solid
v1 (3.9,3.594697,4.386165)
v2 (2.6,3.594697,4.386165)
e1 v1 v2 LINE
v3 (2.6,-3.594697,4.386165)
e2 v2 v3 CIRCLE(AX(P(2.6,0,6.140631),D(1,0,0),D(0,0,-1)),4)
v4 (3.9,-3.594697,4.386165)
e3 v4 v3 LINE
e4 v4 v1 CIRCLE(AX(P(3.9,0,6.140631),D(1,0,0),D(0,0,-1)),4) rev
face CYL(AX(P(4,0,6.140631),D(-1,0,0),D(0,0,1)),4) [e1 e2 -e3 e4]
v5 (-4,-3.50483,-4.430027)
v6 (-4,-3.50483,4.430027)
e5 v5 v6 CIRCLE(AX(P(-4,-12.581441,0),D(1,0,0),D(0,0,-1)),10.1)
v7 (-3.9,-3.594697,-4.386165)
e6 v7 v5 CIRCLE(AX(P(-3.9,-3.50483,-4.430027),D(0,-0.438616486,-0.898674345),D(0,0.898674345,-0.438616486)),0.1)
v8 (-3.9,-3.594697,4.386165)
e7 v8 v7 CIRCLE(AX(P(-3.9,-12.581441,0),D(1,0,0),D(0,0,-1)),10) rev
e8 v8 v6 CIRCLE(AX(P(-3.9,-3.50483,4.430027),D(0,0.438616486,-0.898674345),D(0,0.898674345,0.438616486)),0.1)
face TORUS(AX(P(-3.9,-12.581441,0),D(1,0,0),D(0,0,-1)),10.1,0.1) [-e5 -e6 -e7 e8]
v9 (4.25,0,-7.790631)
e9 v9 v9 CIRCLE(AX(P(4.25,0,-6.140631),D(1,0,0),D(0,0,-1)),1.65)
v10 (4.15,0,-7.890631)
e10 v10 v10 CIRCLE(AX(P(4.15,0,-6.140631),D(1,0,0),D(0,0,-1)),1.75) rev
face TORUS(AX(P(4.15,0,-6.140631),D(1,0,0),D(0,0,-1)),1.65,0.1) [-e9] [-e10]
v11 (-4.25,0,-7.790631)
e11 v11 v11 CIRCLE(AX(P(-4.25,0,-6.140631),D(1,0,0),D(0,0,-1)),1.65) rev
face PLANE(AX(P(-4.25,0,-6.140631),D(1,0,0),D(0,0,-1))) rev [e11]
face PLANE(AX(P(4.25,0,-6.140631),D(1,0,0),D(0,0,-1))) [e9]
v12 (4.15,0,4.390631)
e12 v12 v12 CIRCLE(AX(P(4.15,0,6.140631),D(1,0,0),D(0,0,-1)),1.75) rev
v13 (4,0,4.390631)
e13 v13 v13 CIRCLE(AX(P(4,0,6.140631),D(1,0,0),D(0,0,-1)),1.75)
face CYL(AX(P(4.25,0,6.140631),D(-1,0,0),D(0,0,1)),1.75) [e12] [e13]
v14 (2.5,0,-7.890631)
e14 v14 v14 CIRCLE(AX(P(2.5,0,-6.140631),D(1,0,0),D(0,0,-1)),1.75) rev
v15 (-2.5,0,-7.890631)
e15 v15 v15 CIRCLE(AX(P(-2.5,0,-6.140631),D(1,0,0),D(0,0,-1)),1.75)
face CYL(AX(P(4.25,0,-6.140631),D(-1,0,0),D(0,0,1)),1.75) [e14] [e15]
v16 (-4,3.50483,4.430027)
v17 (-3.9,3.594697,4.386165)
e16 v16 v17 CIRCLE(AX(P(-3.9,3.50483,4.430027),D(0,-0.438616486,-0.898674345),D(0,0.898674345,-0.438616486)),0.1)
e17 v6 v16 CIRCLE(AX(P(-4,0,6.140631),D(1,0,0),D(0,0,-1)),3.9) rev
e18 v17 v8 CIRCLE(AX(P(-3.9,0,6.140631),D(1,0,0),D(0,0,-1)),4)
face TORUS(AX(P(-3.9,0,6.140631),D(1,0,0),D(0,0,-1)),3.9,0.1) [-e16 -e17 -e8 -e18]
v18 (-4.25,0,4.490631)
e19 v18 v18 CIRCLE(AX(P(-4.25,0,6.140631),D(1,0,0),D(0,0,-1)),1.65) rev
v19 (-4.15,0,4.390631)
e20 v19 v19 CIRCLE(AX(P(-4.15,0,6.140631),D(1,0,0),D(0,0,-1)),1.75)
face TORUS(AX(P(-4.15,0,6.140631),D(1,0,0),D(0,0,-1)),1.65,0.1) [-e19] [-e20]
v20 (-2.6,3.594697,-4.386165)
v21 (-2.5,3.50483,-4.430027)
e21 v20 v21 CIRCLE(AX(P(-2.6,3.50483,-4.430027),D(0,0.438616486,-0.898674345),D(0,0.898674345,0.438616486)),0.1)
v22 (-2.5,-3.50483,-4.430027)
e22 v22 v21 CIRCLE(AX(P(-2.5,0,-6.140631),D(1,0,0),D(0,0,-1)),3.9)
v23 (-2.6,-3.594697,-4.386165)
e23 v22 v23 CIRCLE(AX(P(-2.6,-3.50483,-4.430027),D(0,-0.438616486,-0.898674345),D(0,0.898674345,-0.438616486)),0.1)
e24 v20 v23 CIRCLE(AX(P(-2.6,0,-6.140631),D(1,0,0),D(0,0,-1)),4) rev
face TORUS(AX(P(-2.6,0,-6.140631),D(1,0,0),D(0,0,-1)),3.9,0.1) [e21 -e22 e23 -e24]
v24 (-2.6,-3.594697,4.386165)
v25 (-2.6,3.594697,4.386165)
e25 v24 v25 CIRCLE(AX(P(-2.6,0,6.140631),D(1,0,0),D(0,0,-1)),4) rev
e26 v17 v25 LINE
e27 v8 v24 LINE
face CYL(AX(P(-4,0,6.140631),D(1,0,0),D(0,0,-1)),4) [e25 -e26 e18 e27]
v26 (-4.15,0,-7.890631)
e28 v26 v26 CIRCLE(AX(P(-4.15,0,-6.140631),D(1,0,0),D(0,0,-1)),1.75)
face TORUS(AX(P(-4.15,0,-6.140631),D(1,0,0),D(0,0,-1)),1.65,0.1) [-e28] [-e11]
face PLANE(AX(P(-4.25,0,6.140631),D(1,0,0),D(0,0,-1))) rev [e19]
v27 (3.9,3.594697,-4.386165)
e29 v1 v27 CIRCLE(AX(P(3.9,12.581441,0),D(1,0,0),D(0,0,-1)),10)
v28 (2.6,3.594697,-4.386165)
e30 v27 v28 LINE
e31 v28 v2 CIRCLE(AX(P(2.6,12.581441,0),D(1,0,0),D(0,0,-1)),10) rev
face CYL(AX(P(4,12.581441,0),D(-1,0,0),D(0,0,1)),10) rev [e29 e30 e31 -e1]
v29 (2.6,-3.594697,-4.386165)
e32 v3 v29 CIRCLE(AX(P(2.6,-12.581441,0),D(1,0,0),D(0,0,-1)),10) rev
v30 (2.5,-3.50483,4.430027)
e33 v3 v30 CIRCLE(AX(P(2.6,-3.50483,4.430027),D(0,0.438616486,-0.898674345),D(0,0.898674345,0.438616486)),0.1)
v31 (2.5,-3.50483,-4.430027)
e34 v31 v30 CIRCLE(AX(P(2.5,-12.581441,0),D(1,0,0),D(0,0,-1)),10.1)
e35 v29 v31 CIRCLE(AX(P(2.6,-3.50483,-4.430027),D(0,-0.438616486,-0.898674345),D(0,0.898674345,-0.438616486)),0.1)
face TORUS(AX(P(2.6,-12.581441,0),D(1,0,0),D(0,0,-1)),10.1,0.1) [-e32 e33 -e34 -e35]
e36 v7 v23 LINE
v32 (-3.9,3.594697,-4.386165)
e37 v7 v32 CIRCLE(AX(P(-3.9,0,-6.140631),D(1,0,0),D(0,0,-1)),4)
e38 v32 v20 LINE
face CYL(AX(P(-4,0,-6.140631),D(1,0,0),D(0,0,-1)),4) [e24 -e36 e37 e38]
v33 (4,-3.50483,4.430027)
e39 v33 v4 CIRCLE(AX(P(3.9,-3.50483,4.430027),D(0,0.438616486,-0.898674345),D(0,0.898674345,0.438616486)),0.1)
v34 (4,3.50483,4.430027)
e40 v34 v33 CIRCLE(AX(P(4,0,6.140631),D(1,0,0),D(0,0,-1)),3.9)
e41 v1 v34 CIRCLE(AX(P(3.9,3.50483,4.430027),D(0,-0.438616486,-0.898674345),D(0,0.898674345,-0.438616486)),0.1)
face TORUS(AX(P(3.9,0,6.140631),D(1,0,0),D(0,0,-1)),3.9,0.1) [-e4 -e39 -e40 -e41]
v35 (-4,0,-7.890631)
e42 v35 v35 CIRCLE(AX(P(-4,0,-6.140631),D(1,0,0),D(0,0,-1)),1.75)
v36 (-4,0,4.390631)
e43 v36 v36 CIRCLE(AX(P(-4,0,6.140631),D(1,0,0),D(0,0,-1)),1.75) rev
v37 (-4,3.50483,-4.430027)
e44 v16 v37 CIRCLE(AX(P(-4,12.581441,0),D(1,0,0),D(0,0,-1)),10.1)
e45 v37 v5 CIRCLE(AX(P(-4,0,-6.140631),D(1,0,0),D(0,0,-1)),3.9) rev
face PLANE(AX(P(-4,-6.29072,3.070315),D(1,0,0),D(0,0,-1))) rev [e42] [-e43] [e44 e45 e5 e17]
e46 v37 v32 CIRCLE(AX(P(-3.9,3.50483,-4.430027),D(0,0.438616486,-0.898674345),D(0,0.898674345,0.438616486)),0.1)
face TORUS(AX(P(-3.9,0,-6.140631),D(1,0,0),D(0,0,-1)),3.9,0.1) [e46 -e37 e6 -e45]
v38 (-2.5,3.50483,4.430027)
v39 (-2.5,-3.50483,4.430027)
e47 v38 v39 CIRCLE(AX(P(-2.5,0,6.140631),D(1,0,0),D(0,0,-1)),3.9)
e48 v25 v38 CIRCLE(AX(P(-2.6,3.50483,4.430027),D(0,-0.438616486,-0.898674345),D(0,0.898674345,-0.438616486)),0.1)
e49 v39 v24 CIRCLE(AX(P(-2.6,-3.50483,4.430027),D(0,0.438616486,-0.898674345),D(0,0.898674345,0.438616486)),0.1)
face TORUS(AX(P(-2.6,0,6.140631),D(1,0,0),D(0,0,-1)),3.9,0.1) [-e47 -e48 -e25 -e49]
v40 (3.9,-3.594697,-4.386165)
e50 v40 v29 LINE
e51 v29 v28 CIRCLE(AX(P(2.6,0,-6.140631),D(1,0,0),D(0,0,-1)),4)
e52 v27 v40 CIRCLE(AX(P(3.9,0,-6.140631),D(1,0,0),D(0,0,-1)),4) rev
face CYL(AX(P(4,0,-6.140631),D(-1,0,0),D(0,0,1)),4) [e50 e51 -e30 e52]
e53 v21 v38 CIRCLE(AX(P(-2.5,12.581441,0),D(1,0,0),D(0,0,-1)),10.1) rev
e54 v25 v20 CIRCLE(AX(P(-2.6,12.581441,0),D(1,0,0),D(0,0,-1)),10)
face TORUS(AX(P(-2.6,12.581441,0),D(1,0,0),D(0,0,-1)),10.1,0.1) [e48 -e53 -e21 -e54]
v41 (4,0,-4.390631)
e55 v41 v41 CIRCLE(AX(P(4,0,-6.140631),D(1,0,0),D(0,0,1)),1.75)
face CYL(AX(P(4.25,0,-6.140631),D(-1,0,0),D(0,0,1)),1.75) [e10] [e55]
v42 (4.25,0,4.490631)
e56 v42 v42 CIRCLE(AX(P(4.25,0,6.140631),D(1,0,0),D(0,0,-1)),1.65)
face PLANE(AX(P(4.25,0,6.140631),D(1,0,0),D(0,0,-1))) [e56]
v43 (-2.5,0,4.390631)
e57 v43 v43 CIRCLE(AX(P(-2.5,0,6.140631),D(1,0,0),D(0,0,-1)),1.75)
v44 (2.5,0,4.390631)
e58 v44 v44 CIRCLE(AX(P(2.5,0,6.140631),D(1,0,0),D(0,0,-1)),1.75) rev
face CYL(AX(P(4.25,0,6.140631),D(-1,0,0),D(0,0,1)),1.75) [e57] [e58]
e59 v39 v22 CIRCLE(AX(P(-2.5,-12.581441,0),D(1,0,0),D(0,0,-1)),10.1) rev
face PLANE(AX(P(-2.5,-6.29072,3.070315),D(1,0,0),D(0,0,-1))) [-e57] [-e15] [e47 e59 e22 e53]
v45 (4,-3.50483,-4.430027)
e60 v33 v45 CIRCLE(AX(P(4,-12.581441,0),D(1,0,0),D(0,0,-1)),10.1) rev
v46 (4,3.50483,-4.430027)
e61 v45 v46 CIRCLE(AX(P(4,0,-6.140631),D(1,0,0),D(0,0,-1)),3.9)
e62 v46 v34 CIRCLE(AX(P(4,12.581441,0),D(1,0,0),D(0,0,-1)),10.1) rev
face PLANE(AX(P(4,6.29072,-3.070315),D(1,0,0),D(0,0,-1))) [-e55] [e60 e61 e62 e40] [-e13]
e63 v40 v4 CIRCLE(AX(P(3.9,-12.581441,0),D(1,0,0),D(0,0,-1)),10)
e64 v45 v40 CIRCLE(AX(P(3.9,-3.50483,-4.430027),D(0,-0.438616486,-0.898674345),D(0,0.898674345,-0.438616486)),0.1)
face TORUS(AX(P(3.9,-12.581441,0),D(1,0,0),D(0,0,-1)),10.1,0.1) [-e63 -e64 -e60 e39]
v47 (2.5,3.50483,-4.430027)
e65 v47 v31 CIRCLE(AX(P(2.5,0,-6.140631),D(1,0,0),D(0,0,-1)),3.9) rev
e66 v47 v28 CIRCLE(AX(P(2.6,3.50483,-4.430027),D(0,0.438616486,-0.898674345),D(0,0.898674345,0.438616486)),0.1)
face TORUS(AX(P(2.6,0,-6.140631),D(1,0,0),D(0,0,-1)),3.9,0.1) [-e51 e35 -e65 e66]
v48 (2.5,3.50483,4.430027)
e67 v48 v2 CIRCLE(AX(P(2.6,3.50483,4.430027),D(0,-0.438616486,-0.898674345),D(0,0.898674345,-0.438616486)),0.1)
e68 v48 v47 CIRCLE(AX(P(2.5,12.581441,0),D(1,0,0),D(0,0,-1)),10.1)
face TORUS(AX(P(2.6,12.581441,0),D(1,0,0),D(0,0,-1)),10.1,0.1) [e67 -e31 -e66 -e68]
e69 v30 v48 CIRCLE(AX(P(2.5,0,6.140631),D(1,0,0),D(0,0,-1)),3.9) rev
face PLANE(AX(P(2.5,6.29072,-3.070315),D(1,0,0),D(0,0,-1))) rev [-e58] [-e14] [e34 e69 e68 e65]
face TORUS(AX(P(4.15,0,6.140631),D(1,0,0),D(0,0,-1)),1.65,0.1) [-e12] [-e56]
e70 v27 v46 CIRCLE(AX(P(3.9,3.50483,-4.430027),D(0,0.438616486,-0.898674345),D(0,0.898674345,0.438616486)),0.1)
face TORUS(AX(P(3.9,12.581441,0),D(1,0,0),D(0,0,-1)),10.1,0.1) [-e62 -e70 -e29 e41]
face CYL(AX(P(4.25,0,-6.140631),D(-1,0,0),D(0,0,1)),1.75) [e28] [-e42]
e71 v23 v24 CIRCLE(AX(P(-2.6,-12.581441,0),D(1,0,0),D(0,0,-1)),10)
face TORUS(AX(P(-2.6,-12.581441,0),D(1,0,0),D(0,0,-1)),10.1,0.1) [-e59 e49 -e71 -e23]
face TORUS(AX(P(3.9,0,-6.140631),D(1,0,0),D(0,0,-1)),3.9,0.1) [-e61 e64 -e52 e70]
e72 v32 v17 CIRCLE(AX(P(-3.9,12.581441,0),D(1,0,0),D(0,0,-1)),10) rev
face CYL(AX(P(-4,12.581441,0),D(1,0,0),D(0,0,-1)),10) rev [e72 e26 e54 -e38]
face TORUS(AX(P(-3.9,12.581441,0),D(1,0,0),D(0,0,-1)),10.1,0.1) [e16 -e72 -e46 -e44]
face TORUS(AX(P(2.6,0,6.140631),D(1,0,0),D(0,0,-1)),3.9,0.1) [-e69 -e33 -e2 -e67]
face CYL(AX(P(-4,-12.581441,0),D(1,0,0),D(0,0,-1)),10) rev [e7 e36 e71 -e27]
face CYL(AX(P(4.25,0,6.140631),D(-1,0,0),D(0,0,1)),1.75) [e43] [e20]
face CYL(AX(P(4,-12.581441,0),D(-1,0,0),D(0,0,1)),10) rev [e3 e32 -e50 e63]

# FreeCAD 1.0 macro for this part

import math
import FreeCAD as App
import Part
import Sketcher

V = App.Vector
Q = App.Units.Quantity


def edges_at(feature, points):
    """Names of the edges that pass closest to the given points."""
    edges = feature.Shape.Edges
    near = lambda p: min(range(len(edges)), key=lambda i: edges[i].distToShape(Part.Vertex(*p))[0])
    return sorted({f"Edge{near(p) + 1}" for p in points})

doc = App.newDocument("Part")
params = doc.addObject("Spreadsheet::Sheet", "Params")
for row, (alias, value) in enumerate([
    ("sketch1_radius", "4 mm"),
    ("sketch1_radius2", "10 mm"),
    ("sketch1_diameter", "3.5 mm"),
    ("pad1_length", "1.5 mm"),
    ("sketch2_radius", "10 mm"),
    ("sketch2_radius2", "4 mm"),
    ("sketch2_diameter", "3.5 mm"),
    ("pad2_length", "1.5 mm"),
    ("sketch3_diameter", "3.5 mm"),
    ("pad3_length", "8.5 mm"),
    ("fillet_radius", "0.1 mm"),
], start=1):
    params.set(f"A{row}", alias)
    params.set(f"B{row}", "=" + value)
    params.setAlias(f"B{row}", alias)

body = doc.addObject("PartDesign::Body", "Body")

# Sketch on YZ plane
sketch1 = doc.addObject("Sketcher::SketchObject", "Sketch")
body.addObject(sketch1)
sketch1.AttachmentSupport = (doc.YZ_Plane, [""])
sketch1.MapMode = "FlatFace"
sketch1.AttachmentOffset = App.Placement(V(0, 0, 2.5), App.Rotation())
sketch1.addGeometry([
    Part.ArcOfCircle(Part.Circle(V(0, 6.140631, 0), V(0, 0, 1), 4), math.radians(-26.015641), math.radians(206.015641)),  # 0
    Part.ArcOfCircle(Part.Circle(V(-12.581441, 0, 0), V(0, 0, 1), 10), math.radians(-26.015641), math.radians(26.015641)),  # 1
    Part.ArcOfCircle(Part.Circle(V(0, -6.140631, 0), V(0, 0, 1), 4), math.radians(153.984359), math.radians(386.015641)),  # 2
    Part.ArcOfCircle(Part.Circle(V(12.581441, 0, 0), V(0, 0, 1), 10), math.radians(153.984359), math.radians(206.015641)),  # 3
    Part.Circle(V(0, 6.140631, 0), V(0, 0, 1), 1.75),  # 4
    Part.Circle(V(0, -6.140631, 0), V(0, 0, 1), 1.75),  # 5
], False)
sketch1.addConstraint([
    Sketcher.Constraint("Tangent", 0, 2, 1, 2),
    Sketcher.Constraint("Tangent", 1, 1, 2, 1),
    Sketcher.Constraint("Tangent", 2, 2, 3, 2),
    Sketcher.Constraint("Tangent", 3, 1, 0, 1),
    Sketcher.Constraint("Coincident", 4, 3, 0, 3),
    Sketcher.Constraint("Coincident", 5, 3, 2, 3),
    Sketcher.Constraint("Equal", 0, 2),
    Sketcher.Constraint("Equal", 1, 3),
    Sketcher.Constraint("Equal", 4, 5),
    Sketcher.Constraint("Symmetric", 0, 3, 2, 3, -1, 1),
    Sketcher.Constraint("PointOnObject", 0, 3, -2),
    Sketcher.Constraint("Radius", 0, Q("4 mm")),
    Sketcher.Constraint("Radius", 1, Q("10 mm")),
    Sketcher.Constraint("Diameter", 4, Q("3.5 mm")),
    Sketcher.Constraint("DistanceY", -1, 1, 0, 3, Q("6.140631 mm")),
])
sketch1.setExpression("Constraints[11]", "Params.sketch1_radius")
sketch1.setExpression("Constraints[12]", "Params.sketch1_radius2")
sketch1.setExpression("Constraints[13]", "Params.sketch1_diameter")
pad1 = doc.addObject("PartDesign::Pad", "Pad")
body.addObject(pad1)
pad1.Profile = sketch1
pad1.setExpression("Length", "Params.pad1_length")
body2 = doc.addObject("PartDesign::Body", "Body001")

# Sketch on YZ plane
sketch2 = doc.addObject("Sketcher::SketchObject", "Sketch001")
body2.addObject(sketch2)
sketch2.AttachmentSupport = (doc.getObject("YZ_Plane001"), [""])
sketch2.MapMode = "FlatFace"
sketch2.AttachmentOffset = App.Placement(V(0, 0, -2.5), App.Rotation())
sketch2.addGeometry([
    Part.ArcOfCircle(Part.Circle(V(12.581441, 0, 0), V(0, 0, 1), 10), math.radians(153.984359), math.radians(206.015641)),  # 0
    Part.ArcOfCircle(Part.Circle(V(0, 6.140631, 0), V(0, 0, 1), 4), math.radians(-26.015641), math.radians(206.015641)),  # 1
    Part.ArcOfCircle(Part.Circle(V(-12.581441, 0, 0), V(0, 0, 1), 10), math.radians(-26.015641), math.radians(26.015641)),  # 2
    Part.ArcOfCircle(Part.Circle(V(0, -6.140631, 0), V(0, 0, 1), 4), math.radians(153.984359), math.radians(386.015641)),  # 3
    Part.Circle(V(0, -6.140631, 0), V(0, 0, 1), 1.75),  # 4
    Part.Circle(V(0, 6.140631, 0), V(0, 0, 1), 1.75),  # 5
], False)
sketch2.addConstraint([
    Sketcher.Constraint("Tangent", 0, 1, 1, 1),
    Sketcher.Constraint("Tangent", 1, 2, 2, 2),
    Sketcher.Constraint("Tangent", 2, 1, 3, 1),
    Sketcher.Constraint("Tangent", 3, 2, 0, 2),
    Sketcher.Constraint("Coincident", 4, 3, 3, 3),
    Sketcher.Constraint("Coincident", 5, 3, 1, 3),
    Sketcher.Constraint("Equal", 0, 2),
    Sketcher.Constraint("Equal", 1, 3),
    Sketcher.Constraint("Equal", 4, 5),
    Sketcher.Constraint("Symmetric", 0, 3, 2, 3, -1, 1),
    Sketcher.Constraint("PointOnObject", 0, 3, -1),
    Sketcher.Constraint("Radius", 0, Q("10 mm")),
    Sketcher.Constraint("Radius", 1, Q("4 mm")),
    Sketcher.Constraint("Diameter", 4, Q("3.5 mm")),
    Sketcher.Constraint("DistanceX", -1, 1, 0, 3, Q("12.581441 mm")),
])
sketch2.setExpression("Constraints[11]", "Params.sketch2_radius")
sketch2.setExpression("Constraints[12]", "Params.sketch2_radius2")
sketch2.setExpression("Constraints[13]", "Params.sketch2_diameter")
pad2 = doc.addObject("PartDesign::Pad", "Pad001")
body2.addObject(pad2)
pad2.Profile = sketch2
pad2.setExpression("Length", "Params.pad2_length")
pad2.Reversed = True
body.AllowCompound = True
doc.recompute()

boolean = doc.addObject("PartDesign::Boolean", "Boolean")
body.addObject(boolean)
boolean.Type = "Fuse"
boolean.addObjects([body2])

# Sketch on YZ plane
sketch3 = doc.addObject("Sketcher::SketchObject", "Sketch002")
body.addObject(sketch3)
sketch3.AttachmentSupport = (doc.YZ_Plane, [""])
sketch3.MapMode = "FlatFace"
sketch3.addGeometry([
    Part.Circle(V(0, -6.140631, 0), V(0, 0, 1), 1.75),
    Part.Circle(V(0, 6.140631, 0), V(0, 0, 1), 1.75),
], False)
sketch3.addConstraint([
    Sketcher.Constraint("Equal", 0, 1),
    Sketcher.Constraint("Symmetric", 0, 3, 1, 3, -1, 1),
    Sketcher.Constraint("PointOnObject", 0, 3, -2),
    Sketcher.Constraint("Diameter", 0, Q("3.5 mm")),
    Sketcher.Constraint("DistanceY", 0, 3, -1, 1, Q("6.140631 mm")),
])
sketch3.setExpression("Constraints[3]", "Params.sketch3_diameter")
pad3 = doc.addObject("PartDesign::Pad", "Pad002")
body.addObject(pad3)
pad3.Profile = sketch3
pad3.setExpression("Length", "Params.pad3_length")
pad3.Midplane = True
doc.recompute()

fillet = doc.addObject("PartDesign::Fillet", "Fillet")
body.addObject(fillet)
fillet.Base = (pad3, edges_at(pad3, [
    (4, -2.581, 0),
    (4, 0, -10.141),
    (-4.25, 0, -4.391),
    (4.25, 0, -4.391),
    (-4, 0, 10.141),
    (-4, 2.581, 0),
    (-4, 0, -10.141),
    (-4, -2.581, 0),
    (-2.5, 0, 10.141),
    (-2.5, -2.581, 0),
    (-2.5, 0, -10.141),
    (-2.5, 2.581, 0),
    (-4.25, 0, 7.891),
    (4.25, 0, 7.891),
    (4, 2.581, 0),
    (2.5, 0, -10.141),
    (2.5, -2.581, 0),
    (2.5, 0, 10.141),
    (2.5, 2.581, 0),
    (4, 0, 10.141),
]))
fillet.setExpression("Radius", "Params.fillet_radius")

doc.recompute()
